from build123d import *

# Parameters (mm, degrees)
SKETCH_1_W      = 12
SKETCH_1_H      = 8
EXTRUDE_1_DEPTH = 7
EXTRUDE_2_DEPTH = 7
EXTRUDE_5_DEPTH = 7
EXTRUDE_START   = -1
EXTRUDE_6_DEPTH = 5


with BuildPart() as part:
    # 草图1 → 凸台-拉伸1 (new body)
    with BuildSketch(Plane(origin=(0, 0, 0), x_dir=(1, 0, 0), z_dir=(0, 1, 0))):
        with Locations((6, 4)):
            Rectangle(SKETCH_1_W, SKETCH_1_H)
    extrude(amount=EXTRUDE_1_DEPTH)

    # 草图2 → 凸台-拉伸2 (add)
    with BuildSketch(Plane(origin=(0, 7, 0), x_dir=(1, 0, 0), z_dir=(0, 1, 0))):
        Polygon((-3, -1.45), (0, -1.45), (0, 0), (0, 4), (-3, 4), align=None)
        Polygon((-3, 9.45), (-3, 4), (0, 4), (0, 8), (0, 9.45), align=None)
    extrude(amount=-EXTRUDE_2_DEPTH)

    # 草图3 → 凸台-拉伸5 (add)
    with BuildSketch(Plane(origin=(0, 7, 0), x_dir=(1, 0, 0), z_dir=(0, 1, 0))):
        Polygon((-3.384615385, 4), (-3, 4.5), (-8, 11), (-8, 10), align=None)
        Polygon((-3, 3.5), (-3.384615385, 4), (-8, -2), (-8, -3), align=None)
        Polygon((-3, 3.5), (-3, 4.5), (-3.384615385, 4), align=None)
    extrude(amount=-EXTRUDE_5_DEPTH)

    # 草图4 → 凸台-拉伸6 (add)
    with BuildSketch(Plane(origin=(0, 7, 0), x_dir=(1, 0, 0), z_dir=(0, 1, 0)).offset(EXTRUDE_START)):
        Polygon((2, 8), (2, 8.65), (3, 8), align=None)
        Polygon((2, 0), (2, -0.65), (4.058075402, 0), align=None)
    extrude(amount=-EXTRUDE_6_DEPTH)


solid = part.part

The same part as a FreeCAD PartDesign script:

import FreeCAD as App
import Part
import Sketcher
Q = App.Units.Quantity

doc = App.newDocument("Part")
params = doc.addObject("Spreadsheet::Sheet", "Params")
for row, (alias, value) in enumerate([
    ("sketch1_width", "12 mm"),
    ("sketch1_height", "8 mm"),
    ("pad1_length", "7 mm"),
    ("sketch2_width", "3 mm"),
    ("sketch2_height", "10.9 mm"),
    ("pad2_length", "7 mm"),
    ("sketch3_height", "1 mm"),
    ("pad3_length", "7 mm"),
    ("sketch4_width", "1 mm"),
    ("sketch4_height", "0.65 mm"),
    ("pad4_length", "5 mm"),
], start=1):
    params.set(f"A{row}", alias)
    params.set(f"B{row}", "=" + value)
    params.setAlias(f"B{row}", alias)

body = doc.addObject("PartDesign::Body", "Body")

# Sketch on XZ plane
sketch1 = doc.addObject("Sketcher::SketchObject", "Sketch")
body.addObject(sketch1)
sketch1.AttachmentSupport = (doc.XZ_Plane, [""])
sketch1.MapMode = "FlatFace"
sketch1.addGeometry([
    Part.LineSegment(App.Vector(0, -8, 0), App.Vector(0, 0, 0)),
    Part.LineSegment(App.Vector(0, 0, 0), App.Vector(12, 0, 0)),
    Part.LineSegment(App.Vector(12, 0, 0), App.Vector(12, -8, 0)),
    Part.LineSegment(App.Vector(12, -8, 0), App.Vector(0, -8, 0)),
], False)
sketch1.addConstraint([
    Sketcher.Constraint("Coincident", 0, 2, 1, 1),
    Sketcher.Constraint("Coincident", 1, 2, 2, 1),
    Sketcher.Constraint("Coincident", 2, 2, 3, 1),
    Sketcher.Constraint("Coincident", 3, 2, 0, 1),
    Sketcher.Constraint("Vertical", 0),
    Sketcher.Constraint("Horizontal", 1),
    Sketcher.Constraint("Vertical", 2),
    Sketcher.Constraint("Horizontal", 3),
    Sketcher.Constraint("Coincident", 0, 2, -1, 1),
    Sketcher.Constraint("DistanceX", 1, 1, 1, 2, Q("12 mm")),
    Sketcher.Constraint("DistanceY", 0, 1, 0, 2, Q("8 mm")),
])
sketch1.setExpression("Constraints[9]", "Params.sketch1_width")
sketch1.setExpression("Constraints[10]", "Params.sketch1_height")
pad1 = doc.addObject("PartDesign::Pad", "Pad")
body.addObject(pad1)
pad1.Profile = sketch1
pad1.setExpression("Length", "Params.pad1_length")
pad1.Reversed = True

# Sketch on XZ plane
sketch2 = doc.addObject("Sketcher::SketchObject", "Sketch001")
body.addObject(sketch2)
sketch2.AttachmentSupport = (doc.XZ_Plane, [""])
sketch2.MapMode = "FlatFace"
sketch2.AttachmentOffset = App.Placement(App.Vector(0, 0, -7), App.Rotation())
sketch2.addGeometry([
    Part.LineSegment(App.Vector(-3, 1.4, 0), App.Vector(0, 1.4, 0)),
    Part.LineSegment(App.Vector(0, 1.4, 0), App.Vector(0, -9.4, 0)),
    Part.LineSegment(App.Vector(0, -9.4, 0), App.Vector(-3, -9.4, 0)),
    Part.LineSegment(App.Vector(-3, -9.4, 0), App.Vector(-3, 1.4, 0)),
], False)
sketch2.addConstraint([
    Sketcher.Constraint("Coincident", 0, 2, 1, 1),
    Sketcher.Constraint("Coincident", 1, 2, 2, 1),
    Sketcher.Constraint("Coincident", 2, 2, 3, 1),
    Sketcher.Constraint("Coincident", 3, 2, 0, 1),
    Sketcher.Constraint("Horizontal", 0),
    Sketcher.Constraint("Vertical", 1),
    Sketcher.Constraint("Horizontal", 2),
    Sketcher.Constraint("Vertical", 3),
    Sketcher.Constraint("PointOnObject", 0, 2, -2),
    Sketcher.Constraint("DistanceX", 0, 1, 0, 2, Q("3 mm")),
    Sketcher.Constraint("DistanceY", 1, 2, 1, 1, Q("10.9 mm")),
    Sketcher.Constraint("DistanceY", -1, 1, 0, 2, Q("1.45 mm")),
])
sketch2.setExpression("Constraints[9]", "Params.sketch2_width")
sketch2.setExpression("Constraints[10]", "Params.sketch2_height")
pad2 = doc.addObject("PartDesign::Pad", "Pad001")
body.addObject(pad2)
pad2.Profile = sketch2
pad2.setExpression("Length", "Params.pad2_length")

# Sketch on XZ plane
sketch3 = doc.addObject("Sketcher::SketchObject", "Sketch002")
body.addObject(sketch3)
sketch3.AttachmentSupport = (doc.XZ_Plane, [""])
sketch3.MapMode = "FlatFace"
sketch3.AttachmentOffset = App.Placement(App.Vector(0, 0, -7), App.Rotation())
sketch3.addGeometry([
    Part.LineSegment(App.Vector(-3, -4.5, 0), App.Vector(-8, -11, 0)),  # 0
    Part.LineSegment(App.Vector(-8, -11, 0), App.Vector(-8, -10, 0)),  # 1
    Part.LineSegment(App.Vector(-8, -10, 0), App.Vector(-3.4, -4, 0)),  # 2
    Part.LineSegment(App.Vector(-3.4, -4, 0), App.Vector(-8, 2, 0)),  # 3
    Part.LineSegment(App.Vector(-8, 2, 0), App.Vector(-8, 3, 0)),  # 4
    Part.LineSegment(App.Vector(-8, 3, 0), App.Vector(-3, -3.5, 0)),  # 5
    Part.LineSegment(App.Vector(-3, -3.5, 0), App.Vector(-3, -4.5, 0)),  # 6
], False)
sketch3.addConstraint([
    Sketcher.Constraint("Coincident", 0, 2, 1, 1),
    Sketcher.Constraint("Coincident", 1, 2, 2, 1),
    Sketcher.Constraint("Coincident", 2, 2, 3, 1),
    Sketcher.Constraint("Coincident", 3, 2, 4, 1),
    Sketcher.Constraint("Coincident", 4, 2, 5, 1),
    Sketcher.Constraint("Coincident", 5, 2, 6, 1),
    Sketcher.Constraint("Coincident", 6, 2, 0, 1),
    Sketcher.Constraint("Vertical", 1),
    Sketcher.Constraint("Vertical", 4),
    Sketcher.Constraint("Vertical", 6),
    Sketcher.Constraint("Parallel", 0, 2),
    Sketcher.Constraint("Parallel", 3, 5),
    Sketcher.Constraint("Vertical", 1, 2, 3, 2),
    Sketcher.Constraint("Equal", 1, 4),
    Sketcher.Constraint("Equal", 4, 6),
    Sketcher.Constraint("Equal", 2, 3),
    Sketcher.Constraint("DistanceY", 1, 1, 1, 2, Q("1 mm")),
    Sketcher.Constraint("DistanceX", 0, 2, -1, 1, Q("8 mm")),
    Sketcher.Constraint("DistanceY", 0, 2, -1, 1, Q("11 mm")),
    Sketcher.Constraint("DistanceY", 2, 2, -1, 1, Q("4 mm")),
    Sketcher.Constraint("DistanceX", 5, 2, -1, 1, Q("3 mm")),
])
sketch3.setExpression("Constraints[16]", "Params.sketch3_height")
pad3 = doc.addObject("PartDesign::Pad", "Pad002")
body.addObject(pad3)
pad3.Profile = sketch3
pad3.setExpression("Length", "Params.pad3_length")

# Sketch on XZ plane
sketch4 = doc.addObject("Sketcher::SketchObject", "Sketch003")
body.addObject(sketch4)
sketch4.AttachmentSupport = (doc.XZ_Plane, [""])
sketch4.MapMode = "FlatFace"
sketch4.AttachmentOffset = App.Placement(App.Vector(0, 0, -6), App.Rotation())
sketch4.addGeometry([
    Part.LineSegment(App.Vector(2, -8.7, 0), App.Vector(2, -8, 0)),  # 0
    Part.LineSegment(App.Vector(2, -8, 0), App.Vector(3, -8, 0)),  # 1
    Part.LineSegment(App.Vector(3, -8, 0), App.Vector(2, -8.7, 0)),  # 2
    Part.LineSegment(App.Vector(2, 0, 0), App.Vector(2, 0.7, 0)),  # 3
    Part.LineSegment(App.Vector(2, 0.7, 0), App.Vector(4.1, 0, 0)),  # 4
    Part.LineSegment(App.Vector(4.1, 0, 0), App.Vector(2, 0, 0)),  # 5
], False)
sketch4.addConstraint([
    Sketcher.Constraint("Coincident", 0, 2, 1, 1),
    Sketcher.Constraint("Coincident", 1, 2, 2, 1),
    Sketcher.Constraint("Coincident", 2, 2, 0, 1),
    Sketcher.Constraint("Coincident", 3, 2, 4, 1),
    Sketcher.Constraint("Coincident", 4, 2, 5, 1),
    Sketcher.Constraint("Coincident", 5, 2, 3, 1),
    Sketcher.Constraint("Vertical", 0),
    Sketcher.Constraint("Horizontal", 1),
    Sketcher.Constraint("Vertical", 3),
    Sketcher.Constraint("Horizontal", 5),
    Sketcher.Constraint("PointOnObject", 4, 2, -1),
    Sketcher.Constraint("Vertical", 2, 2, 3, 2),
    Sketcher.Constraint("Equal", 0, 3),
    Sketcher.Constraint("DistanceX", 1, 1, 1, 2, Q("1 mm")),
    Sketcher.Constraint("DistanceX", -1, 1, 0, 2, Q("2 mm")),
    Sketcher.Constraint("DistanceY", 0, 2, -1, 1, Q("8 mm")),
    Sketcher.Constraint("DistanceY", 0, 1, 0, 2, Q("0.65 mm")),
    Sketcher.Constraint("Distance", 4, Q("2.15828 mm")),
])
sketch4.setExpression("Constraints[13]", "Params.sketch4_width")
sketch4.setExpression("Constraints[16]", "Params.sketch4_height")
pad4 = doc.addObject("PartDesign::Pad", "Pad003")
body.addObject(pad4)
pad4.Profile = sketch4
pad4.setExpression("Length", "Params.pad4_length")

doc.recompute()
